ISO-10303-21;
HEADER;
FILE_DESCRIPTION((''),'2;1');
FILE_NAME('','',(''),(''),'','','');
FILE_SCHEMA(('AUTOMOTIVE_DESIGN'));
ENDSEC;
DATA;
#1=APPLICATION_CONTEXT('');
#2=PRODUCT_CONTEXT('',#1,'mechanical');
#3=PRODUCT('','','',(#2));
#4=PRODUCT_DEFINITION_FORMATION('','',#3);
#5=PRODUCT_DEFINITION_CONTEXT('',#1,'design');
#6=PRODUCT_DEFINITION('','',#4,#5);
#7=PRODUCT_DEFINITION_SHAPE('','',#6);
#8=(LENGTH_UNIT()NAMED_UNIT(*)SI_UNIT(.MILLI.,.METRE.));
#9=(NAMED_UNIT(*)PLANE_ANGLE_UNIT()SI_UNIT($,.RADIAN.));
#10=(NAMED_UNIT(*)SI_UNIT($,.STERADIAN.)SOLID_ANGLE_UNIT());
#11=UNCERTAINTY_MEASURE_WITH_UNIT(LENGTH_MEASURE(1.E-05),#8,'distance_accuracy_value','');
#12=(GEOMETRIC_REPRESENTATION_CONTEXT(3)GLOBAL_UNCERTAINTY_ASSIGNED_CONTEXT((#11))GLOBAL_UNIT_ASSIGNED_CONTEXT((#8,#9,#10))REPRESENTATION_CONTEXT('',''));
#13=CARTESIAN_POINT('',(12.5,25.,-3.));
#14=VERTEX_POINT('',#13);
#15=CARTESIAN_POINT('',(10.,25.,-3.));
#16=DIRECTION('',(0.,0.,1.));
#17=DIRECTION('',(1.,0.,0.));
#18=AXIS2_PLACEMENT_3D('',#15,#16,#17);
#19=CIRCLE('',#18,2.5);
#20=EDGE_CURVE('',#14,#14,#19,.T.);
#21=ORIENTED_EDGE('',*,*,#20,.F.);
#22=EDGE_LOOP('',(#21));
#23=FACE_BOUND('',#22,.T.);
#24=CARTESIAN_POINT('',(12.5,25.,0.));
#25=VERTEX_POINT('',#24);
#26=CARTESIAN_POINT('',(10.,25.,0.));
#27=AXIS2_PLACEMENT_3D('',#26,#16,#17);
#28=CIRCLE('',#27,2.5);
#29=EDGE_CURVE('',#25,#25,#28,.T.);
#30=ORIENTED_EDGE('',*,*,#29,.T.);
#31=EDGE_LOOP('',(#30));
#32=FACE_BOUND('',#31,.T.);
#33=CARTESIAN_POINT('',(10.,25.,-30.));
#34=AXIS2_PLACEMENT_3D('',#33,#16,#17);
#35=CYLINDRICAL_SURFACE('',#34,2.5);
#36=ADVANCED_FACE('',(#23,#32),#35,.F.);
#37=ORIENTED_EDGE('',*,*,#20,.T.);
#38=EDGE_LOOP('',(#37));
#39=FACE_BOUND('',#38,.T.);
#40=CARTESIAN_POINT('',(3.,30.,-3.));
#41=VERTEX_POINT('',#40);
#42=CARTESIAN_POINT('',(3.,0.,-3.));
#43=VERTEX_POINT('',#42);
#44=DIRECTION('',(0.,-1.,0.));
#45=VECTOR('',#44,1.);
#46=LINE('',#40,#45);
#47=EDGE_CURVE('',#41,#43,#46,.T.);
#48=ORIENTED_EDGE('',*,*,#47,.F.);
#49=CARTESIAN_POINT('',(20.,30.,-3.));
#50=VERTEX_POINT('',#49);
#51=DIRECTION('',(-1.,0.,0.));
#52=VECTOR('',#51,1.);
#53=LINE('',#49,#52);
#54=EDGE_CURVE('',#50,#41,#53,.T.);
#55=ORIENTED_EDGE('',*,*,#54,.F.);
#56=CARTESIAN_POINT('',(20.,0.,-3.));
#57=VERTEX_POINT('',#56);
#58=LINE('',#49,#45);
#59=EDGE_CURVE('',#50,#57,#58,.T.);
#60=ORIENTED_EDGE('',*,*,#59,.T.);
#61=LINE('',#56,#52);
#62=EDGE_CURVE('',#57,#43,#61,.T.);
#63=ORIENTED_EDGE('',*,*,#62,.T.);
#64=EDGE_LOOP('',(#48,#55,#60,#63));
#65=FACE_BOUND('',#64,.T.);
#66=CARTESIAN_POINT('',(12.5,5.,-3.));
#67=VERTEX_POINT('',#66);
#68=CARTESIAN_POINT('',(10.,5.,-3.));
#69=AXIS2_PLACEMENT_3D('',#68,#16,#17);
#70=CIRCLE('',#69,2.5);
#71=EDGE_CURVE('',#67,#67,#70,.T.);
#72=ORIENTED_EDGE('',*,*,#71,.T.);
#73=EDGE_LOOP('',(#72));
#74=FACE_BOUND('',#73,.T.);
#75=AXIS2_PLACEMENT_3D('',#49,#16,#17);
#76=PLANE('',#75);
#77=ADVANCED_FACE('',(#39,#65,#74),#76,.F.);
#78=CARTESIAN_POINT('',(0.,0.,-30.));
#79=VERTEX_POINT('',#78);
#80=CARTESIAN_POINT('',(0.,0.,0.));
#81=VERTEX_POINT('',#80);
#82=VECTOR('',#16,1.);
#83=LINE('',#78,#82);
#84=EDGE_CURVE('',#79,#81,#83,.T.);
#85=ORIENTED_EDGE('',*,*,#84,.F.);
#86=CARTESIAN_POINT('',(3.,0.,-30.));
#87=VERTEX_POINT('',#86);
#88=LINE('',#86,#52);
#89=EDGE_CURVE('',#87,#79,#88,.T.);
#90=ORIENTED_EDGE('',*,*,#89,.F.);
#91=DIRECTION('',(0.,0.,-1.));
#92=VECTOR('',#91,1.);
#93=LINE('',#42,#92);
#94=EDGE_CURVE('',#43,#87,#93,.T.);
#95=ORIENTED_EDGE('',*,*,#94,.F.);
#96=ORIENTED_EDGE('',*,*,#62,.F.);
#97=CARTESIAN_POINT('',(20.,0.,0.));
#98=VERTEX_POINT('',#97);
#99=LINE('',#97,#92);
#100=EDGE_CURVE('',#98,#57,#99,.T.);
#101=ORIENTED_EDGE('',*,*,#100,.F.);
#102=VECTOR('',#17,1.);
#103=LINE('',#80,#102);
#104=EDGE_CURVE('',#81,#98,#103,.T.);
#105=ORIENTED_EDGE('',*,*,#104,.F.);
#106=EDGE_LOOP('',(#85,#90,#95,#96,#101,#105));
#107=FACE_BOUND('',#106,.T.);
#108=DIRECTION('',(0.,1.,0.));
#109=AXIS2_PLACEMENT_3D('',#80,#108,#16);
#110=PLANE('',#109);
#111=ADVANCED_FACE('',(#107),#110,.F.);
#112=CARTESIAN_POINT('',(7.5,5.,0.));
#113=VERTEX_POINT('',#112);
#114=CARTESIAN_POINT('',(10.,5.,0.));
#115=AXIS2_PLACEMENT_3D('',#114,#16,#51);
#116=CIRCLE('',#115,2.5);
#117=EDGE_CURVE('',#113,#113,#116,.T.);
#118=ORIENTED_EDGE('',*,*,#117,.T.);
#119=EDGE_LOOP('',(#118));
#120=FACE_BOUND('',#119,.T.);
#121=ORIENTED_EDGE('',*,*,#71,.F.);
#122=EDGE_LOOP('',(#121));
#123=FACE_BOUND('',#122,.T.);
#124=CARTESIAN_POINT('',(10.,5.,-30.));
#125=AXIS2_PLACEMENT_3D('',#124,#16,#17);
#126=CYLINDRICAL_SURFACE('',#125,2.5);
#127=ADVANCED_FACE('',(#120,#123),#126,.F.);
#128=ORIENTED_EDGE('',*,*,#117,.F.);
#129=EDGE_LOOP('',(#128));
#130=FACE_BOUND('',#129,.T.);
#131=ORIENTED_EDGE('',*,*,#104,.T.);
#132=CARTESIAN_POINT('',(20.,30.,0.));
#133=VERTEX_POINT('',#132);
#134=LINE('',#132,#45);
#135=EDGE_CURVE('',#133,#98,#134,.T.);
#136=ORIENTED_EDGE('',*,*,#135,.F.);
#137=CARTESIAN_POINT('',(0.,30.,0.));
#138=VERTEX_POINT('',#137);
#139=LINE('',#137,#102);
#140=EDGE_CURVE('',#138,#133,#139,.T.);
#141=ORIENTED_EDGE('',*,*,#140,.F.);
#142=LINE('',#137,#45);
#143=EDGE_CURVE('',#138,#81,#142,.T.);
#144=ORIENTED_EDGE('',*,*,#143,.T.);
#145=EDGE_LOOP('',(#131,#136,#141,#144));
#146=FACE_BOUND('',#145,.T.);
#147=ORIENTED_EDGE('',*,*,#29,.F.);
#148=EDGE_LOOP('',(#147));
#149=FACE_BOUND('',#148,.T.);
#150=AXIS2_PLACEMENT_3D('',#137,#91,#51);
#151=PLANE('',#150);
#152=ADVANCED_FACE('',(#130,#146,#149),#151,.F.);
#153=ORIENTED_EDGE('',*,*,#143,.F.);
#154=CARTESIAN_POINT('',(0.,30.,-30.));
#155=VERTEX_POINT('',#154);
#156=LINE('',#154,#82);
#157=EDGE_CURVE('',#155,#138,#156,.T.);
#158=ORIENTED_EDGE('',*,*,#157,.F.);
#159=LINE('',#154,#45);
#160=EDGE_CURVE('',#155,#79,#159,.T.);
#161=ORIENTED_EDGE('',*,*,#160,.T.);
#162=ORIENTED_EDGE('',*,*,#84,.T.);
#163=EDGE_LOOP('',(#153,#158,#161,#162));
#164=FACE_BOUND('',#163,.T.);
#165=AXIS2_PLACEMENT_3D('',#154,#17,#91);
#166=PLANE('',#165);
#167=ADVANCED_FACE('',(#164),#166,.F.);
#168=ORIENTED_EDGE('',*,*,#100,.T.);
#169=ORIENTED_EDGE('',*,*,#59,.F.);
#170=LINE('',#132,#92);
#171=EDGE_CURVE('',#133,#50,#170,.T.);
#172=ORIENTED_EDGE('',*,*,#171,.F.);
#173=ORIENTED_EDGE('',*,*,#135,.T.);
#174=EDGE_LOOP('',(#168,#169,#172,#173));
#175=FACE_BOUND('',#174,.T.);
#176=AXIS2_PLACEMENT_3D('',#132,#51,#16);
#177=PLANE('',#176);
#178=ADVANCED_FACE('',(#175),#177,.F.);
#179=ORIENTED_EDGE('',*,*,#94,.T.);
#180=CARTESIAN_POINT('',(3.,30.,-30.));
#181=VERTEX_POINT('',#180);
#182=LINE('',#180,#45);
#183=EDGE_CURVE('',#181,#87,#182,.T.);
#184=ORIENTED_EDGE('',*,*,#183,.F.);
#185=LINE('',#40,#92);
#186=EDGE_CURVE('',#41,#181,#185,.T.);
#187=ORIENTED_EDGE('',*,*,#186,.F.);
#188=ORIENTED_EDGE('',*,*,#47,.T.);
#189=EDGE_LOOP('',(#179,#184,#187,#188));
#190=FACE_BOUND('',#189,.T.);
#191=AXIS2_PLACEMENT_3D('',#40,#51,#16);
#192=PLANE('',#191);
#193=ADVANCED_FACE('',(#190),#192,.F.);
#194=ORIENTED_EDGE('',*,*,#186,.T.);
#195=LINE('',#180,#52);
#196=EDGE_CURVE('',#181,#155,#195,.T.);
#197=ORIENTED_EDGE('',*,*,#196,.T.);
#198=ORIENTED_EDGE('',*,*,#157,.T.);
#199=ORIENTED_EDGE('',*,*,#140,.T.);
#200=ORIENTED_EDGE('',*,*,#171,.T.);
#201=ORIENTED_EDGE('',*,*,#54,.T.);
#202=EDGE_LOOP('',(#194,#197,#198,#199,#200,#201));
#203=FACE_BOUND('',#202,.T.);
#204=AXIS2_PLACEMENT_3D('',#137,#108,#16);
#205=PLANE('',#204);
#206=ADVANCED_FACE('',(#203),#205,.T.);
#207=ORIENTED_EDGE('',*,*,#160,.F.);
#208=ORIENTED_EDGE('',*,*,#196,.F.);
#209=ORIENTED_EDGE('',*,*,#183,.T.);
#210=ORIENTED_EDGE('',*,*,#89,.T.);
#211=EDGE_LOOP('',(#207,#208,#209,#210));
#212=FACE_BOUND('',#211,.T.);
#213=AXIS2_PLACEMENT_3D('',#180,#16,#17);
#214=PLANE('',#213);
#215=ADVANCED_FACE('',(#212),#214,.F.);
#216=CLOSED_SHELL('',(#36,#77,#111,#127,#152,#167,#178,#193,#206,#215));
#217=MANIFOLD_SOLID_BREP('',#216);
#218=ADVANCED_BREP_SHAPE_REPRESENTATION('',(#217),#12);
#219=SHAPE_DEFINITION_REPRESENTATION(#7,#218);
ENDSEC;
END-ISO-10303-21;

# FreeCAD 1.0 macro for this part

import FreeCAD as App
import Part
import Sketcher

doc = App.newDocument("Part")
body = doc.addObject("PartDesign::Body", "Body")

sketch1 = doc.addObject("Sketcher::SketchObject", "Sketch")
body.addObject(sketch1)
sketch1.AttachmentSupport = (doc.XZ_Plane, [""])
sketch1.MapMode = "FlatFace"
sketch1.addGeometry([
    Part.LineSegment(App.Vector(0, -30, 0), App.Vector(0, 0, 0)),
    Part.LineSegment(App.Vector(0, 0, 0), App.Vector(20, 0, 0)),
    Part.LineSegment(App.Vector(20, 0, 0), App.Vector(20, -3, 0)),
    Part.LineSegment(App.Vector(20, -3, 0), App.Vector(3, -3, 0)),
    Part.LineSegment(App.Vector(3, -3, 0), App.Vector(3, -30, 0)),
    Part.LineSegment(App.Vector(3, -30, 0), App.Vector(0, -30, 0)),
], False)
sketch1.addConstraint([
    Sketcher.Constraint("Coincident", 0, 2, 1, 1),
    Sketcher.Constraint("Coincident", 1, 2, 2, 1),
    Sketcher.Constraint("Coincident", 2, 2, 3, 1),
    Sketcher.Constraint("Coincident", 3, 2, 4, 1),
    Sketcher.Constraint("Coincident", 4, 2, 5, 1),
    Sketcher.Constraint("Coincident", 5, 2, 0, 1),
    Sketcher.Constraint("Vertical", 0),
    Sketcher.Constraint("Horizontal", 1),
    Sketcher.Constraint("Vertical", 2),
    Sketcher.Constraint("Horizontal", 3),
    Sketcher.Constraint("Vertical", 4),
    Sketcher.Constraint("Horizontal", 5),
    Sketcher.Constraint("Coincident", 0, 2, -1, 1),
    Sketcher.Constraint("Equal", 5, 2),
    Sketcher.Constraint("DistanceX", 1, 1, 1, 2, 20.0),
    Sketcher.Constraint("DistanceX", 3, 2, 3, 1, 17.0),
    Sketcher.Constraint("DistanceY", 0, 1, 0, 2, 30.0),
])
pad1 = doc.addObject("PartDesign::Pad", "Pad")
body.addObject(pad1)
pad1.Profile = sketch1
pad1.Length = 30
pad1.Reversed = True

sketch2 = doc.addObject("Sketcher::SketchObject", "Sketch001")
body.addObject(sketch2)
sketch2.AttachmentSupport = (doc.XY_Plane, [""])
sketch2.MapMode = "FlatFace"
sketch2.addGeometry([
    Part.Circle(App.Vector(10, 25, 0), App.Vector(0, 0, 1), 2.5),
    Part.Circle(App.Vector(10, 5, 0), App.Vector(0, 0, 1), 2.5),
], False)
sketch2.addConstraint([
    Sketcher.Constraint("Equal", 0, 1),
    Sketcher.Constraint("Vertical", 0, 3, 1, 3),
    Sketcher.Constraint("Diameter", 0, 5.0),
    Sketcher.Constraint("DistanceX", -1, 1, 0, 3, 10.0),
    Sketcher.Constraint("DistanceY", -1, 1, 0, 3, 25.0),
    Sketcher.Constraint("DistanceY", -1, 1, 1, 3, 5.0),
])
pocket1 = doc.addObject("PartDesign::Pocket", "Pocket")
body.addObject(pocket1)
pocket1.Profile = sketch2
pocket1.Type = "ThroughAll"

doc.recompute()
